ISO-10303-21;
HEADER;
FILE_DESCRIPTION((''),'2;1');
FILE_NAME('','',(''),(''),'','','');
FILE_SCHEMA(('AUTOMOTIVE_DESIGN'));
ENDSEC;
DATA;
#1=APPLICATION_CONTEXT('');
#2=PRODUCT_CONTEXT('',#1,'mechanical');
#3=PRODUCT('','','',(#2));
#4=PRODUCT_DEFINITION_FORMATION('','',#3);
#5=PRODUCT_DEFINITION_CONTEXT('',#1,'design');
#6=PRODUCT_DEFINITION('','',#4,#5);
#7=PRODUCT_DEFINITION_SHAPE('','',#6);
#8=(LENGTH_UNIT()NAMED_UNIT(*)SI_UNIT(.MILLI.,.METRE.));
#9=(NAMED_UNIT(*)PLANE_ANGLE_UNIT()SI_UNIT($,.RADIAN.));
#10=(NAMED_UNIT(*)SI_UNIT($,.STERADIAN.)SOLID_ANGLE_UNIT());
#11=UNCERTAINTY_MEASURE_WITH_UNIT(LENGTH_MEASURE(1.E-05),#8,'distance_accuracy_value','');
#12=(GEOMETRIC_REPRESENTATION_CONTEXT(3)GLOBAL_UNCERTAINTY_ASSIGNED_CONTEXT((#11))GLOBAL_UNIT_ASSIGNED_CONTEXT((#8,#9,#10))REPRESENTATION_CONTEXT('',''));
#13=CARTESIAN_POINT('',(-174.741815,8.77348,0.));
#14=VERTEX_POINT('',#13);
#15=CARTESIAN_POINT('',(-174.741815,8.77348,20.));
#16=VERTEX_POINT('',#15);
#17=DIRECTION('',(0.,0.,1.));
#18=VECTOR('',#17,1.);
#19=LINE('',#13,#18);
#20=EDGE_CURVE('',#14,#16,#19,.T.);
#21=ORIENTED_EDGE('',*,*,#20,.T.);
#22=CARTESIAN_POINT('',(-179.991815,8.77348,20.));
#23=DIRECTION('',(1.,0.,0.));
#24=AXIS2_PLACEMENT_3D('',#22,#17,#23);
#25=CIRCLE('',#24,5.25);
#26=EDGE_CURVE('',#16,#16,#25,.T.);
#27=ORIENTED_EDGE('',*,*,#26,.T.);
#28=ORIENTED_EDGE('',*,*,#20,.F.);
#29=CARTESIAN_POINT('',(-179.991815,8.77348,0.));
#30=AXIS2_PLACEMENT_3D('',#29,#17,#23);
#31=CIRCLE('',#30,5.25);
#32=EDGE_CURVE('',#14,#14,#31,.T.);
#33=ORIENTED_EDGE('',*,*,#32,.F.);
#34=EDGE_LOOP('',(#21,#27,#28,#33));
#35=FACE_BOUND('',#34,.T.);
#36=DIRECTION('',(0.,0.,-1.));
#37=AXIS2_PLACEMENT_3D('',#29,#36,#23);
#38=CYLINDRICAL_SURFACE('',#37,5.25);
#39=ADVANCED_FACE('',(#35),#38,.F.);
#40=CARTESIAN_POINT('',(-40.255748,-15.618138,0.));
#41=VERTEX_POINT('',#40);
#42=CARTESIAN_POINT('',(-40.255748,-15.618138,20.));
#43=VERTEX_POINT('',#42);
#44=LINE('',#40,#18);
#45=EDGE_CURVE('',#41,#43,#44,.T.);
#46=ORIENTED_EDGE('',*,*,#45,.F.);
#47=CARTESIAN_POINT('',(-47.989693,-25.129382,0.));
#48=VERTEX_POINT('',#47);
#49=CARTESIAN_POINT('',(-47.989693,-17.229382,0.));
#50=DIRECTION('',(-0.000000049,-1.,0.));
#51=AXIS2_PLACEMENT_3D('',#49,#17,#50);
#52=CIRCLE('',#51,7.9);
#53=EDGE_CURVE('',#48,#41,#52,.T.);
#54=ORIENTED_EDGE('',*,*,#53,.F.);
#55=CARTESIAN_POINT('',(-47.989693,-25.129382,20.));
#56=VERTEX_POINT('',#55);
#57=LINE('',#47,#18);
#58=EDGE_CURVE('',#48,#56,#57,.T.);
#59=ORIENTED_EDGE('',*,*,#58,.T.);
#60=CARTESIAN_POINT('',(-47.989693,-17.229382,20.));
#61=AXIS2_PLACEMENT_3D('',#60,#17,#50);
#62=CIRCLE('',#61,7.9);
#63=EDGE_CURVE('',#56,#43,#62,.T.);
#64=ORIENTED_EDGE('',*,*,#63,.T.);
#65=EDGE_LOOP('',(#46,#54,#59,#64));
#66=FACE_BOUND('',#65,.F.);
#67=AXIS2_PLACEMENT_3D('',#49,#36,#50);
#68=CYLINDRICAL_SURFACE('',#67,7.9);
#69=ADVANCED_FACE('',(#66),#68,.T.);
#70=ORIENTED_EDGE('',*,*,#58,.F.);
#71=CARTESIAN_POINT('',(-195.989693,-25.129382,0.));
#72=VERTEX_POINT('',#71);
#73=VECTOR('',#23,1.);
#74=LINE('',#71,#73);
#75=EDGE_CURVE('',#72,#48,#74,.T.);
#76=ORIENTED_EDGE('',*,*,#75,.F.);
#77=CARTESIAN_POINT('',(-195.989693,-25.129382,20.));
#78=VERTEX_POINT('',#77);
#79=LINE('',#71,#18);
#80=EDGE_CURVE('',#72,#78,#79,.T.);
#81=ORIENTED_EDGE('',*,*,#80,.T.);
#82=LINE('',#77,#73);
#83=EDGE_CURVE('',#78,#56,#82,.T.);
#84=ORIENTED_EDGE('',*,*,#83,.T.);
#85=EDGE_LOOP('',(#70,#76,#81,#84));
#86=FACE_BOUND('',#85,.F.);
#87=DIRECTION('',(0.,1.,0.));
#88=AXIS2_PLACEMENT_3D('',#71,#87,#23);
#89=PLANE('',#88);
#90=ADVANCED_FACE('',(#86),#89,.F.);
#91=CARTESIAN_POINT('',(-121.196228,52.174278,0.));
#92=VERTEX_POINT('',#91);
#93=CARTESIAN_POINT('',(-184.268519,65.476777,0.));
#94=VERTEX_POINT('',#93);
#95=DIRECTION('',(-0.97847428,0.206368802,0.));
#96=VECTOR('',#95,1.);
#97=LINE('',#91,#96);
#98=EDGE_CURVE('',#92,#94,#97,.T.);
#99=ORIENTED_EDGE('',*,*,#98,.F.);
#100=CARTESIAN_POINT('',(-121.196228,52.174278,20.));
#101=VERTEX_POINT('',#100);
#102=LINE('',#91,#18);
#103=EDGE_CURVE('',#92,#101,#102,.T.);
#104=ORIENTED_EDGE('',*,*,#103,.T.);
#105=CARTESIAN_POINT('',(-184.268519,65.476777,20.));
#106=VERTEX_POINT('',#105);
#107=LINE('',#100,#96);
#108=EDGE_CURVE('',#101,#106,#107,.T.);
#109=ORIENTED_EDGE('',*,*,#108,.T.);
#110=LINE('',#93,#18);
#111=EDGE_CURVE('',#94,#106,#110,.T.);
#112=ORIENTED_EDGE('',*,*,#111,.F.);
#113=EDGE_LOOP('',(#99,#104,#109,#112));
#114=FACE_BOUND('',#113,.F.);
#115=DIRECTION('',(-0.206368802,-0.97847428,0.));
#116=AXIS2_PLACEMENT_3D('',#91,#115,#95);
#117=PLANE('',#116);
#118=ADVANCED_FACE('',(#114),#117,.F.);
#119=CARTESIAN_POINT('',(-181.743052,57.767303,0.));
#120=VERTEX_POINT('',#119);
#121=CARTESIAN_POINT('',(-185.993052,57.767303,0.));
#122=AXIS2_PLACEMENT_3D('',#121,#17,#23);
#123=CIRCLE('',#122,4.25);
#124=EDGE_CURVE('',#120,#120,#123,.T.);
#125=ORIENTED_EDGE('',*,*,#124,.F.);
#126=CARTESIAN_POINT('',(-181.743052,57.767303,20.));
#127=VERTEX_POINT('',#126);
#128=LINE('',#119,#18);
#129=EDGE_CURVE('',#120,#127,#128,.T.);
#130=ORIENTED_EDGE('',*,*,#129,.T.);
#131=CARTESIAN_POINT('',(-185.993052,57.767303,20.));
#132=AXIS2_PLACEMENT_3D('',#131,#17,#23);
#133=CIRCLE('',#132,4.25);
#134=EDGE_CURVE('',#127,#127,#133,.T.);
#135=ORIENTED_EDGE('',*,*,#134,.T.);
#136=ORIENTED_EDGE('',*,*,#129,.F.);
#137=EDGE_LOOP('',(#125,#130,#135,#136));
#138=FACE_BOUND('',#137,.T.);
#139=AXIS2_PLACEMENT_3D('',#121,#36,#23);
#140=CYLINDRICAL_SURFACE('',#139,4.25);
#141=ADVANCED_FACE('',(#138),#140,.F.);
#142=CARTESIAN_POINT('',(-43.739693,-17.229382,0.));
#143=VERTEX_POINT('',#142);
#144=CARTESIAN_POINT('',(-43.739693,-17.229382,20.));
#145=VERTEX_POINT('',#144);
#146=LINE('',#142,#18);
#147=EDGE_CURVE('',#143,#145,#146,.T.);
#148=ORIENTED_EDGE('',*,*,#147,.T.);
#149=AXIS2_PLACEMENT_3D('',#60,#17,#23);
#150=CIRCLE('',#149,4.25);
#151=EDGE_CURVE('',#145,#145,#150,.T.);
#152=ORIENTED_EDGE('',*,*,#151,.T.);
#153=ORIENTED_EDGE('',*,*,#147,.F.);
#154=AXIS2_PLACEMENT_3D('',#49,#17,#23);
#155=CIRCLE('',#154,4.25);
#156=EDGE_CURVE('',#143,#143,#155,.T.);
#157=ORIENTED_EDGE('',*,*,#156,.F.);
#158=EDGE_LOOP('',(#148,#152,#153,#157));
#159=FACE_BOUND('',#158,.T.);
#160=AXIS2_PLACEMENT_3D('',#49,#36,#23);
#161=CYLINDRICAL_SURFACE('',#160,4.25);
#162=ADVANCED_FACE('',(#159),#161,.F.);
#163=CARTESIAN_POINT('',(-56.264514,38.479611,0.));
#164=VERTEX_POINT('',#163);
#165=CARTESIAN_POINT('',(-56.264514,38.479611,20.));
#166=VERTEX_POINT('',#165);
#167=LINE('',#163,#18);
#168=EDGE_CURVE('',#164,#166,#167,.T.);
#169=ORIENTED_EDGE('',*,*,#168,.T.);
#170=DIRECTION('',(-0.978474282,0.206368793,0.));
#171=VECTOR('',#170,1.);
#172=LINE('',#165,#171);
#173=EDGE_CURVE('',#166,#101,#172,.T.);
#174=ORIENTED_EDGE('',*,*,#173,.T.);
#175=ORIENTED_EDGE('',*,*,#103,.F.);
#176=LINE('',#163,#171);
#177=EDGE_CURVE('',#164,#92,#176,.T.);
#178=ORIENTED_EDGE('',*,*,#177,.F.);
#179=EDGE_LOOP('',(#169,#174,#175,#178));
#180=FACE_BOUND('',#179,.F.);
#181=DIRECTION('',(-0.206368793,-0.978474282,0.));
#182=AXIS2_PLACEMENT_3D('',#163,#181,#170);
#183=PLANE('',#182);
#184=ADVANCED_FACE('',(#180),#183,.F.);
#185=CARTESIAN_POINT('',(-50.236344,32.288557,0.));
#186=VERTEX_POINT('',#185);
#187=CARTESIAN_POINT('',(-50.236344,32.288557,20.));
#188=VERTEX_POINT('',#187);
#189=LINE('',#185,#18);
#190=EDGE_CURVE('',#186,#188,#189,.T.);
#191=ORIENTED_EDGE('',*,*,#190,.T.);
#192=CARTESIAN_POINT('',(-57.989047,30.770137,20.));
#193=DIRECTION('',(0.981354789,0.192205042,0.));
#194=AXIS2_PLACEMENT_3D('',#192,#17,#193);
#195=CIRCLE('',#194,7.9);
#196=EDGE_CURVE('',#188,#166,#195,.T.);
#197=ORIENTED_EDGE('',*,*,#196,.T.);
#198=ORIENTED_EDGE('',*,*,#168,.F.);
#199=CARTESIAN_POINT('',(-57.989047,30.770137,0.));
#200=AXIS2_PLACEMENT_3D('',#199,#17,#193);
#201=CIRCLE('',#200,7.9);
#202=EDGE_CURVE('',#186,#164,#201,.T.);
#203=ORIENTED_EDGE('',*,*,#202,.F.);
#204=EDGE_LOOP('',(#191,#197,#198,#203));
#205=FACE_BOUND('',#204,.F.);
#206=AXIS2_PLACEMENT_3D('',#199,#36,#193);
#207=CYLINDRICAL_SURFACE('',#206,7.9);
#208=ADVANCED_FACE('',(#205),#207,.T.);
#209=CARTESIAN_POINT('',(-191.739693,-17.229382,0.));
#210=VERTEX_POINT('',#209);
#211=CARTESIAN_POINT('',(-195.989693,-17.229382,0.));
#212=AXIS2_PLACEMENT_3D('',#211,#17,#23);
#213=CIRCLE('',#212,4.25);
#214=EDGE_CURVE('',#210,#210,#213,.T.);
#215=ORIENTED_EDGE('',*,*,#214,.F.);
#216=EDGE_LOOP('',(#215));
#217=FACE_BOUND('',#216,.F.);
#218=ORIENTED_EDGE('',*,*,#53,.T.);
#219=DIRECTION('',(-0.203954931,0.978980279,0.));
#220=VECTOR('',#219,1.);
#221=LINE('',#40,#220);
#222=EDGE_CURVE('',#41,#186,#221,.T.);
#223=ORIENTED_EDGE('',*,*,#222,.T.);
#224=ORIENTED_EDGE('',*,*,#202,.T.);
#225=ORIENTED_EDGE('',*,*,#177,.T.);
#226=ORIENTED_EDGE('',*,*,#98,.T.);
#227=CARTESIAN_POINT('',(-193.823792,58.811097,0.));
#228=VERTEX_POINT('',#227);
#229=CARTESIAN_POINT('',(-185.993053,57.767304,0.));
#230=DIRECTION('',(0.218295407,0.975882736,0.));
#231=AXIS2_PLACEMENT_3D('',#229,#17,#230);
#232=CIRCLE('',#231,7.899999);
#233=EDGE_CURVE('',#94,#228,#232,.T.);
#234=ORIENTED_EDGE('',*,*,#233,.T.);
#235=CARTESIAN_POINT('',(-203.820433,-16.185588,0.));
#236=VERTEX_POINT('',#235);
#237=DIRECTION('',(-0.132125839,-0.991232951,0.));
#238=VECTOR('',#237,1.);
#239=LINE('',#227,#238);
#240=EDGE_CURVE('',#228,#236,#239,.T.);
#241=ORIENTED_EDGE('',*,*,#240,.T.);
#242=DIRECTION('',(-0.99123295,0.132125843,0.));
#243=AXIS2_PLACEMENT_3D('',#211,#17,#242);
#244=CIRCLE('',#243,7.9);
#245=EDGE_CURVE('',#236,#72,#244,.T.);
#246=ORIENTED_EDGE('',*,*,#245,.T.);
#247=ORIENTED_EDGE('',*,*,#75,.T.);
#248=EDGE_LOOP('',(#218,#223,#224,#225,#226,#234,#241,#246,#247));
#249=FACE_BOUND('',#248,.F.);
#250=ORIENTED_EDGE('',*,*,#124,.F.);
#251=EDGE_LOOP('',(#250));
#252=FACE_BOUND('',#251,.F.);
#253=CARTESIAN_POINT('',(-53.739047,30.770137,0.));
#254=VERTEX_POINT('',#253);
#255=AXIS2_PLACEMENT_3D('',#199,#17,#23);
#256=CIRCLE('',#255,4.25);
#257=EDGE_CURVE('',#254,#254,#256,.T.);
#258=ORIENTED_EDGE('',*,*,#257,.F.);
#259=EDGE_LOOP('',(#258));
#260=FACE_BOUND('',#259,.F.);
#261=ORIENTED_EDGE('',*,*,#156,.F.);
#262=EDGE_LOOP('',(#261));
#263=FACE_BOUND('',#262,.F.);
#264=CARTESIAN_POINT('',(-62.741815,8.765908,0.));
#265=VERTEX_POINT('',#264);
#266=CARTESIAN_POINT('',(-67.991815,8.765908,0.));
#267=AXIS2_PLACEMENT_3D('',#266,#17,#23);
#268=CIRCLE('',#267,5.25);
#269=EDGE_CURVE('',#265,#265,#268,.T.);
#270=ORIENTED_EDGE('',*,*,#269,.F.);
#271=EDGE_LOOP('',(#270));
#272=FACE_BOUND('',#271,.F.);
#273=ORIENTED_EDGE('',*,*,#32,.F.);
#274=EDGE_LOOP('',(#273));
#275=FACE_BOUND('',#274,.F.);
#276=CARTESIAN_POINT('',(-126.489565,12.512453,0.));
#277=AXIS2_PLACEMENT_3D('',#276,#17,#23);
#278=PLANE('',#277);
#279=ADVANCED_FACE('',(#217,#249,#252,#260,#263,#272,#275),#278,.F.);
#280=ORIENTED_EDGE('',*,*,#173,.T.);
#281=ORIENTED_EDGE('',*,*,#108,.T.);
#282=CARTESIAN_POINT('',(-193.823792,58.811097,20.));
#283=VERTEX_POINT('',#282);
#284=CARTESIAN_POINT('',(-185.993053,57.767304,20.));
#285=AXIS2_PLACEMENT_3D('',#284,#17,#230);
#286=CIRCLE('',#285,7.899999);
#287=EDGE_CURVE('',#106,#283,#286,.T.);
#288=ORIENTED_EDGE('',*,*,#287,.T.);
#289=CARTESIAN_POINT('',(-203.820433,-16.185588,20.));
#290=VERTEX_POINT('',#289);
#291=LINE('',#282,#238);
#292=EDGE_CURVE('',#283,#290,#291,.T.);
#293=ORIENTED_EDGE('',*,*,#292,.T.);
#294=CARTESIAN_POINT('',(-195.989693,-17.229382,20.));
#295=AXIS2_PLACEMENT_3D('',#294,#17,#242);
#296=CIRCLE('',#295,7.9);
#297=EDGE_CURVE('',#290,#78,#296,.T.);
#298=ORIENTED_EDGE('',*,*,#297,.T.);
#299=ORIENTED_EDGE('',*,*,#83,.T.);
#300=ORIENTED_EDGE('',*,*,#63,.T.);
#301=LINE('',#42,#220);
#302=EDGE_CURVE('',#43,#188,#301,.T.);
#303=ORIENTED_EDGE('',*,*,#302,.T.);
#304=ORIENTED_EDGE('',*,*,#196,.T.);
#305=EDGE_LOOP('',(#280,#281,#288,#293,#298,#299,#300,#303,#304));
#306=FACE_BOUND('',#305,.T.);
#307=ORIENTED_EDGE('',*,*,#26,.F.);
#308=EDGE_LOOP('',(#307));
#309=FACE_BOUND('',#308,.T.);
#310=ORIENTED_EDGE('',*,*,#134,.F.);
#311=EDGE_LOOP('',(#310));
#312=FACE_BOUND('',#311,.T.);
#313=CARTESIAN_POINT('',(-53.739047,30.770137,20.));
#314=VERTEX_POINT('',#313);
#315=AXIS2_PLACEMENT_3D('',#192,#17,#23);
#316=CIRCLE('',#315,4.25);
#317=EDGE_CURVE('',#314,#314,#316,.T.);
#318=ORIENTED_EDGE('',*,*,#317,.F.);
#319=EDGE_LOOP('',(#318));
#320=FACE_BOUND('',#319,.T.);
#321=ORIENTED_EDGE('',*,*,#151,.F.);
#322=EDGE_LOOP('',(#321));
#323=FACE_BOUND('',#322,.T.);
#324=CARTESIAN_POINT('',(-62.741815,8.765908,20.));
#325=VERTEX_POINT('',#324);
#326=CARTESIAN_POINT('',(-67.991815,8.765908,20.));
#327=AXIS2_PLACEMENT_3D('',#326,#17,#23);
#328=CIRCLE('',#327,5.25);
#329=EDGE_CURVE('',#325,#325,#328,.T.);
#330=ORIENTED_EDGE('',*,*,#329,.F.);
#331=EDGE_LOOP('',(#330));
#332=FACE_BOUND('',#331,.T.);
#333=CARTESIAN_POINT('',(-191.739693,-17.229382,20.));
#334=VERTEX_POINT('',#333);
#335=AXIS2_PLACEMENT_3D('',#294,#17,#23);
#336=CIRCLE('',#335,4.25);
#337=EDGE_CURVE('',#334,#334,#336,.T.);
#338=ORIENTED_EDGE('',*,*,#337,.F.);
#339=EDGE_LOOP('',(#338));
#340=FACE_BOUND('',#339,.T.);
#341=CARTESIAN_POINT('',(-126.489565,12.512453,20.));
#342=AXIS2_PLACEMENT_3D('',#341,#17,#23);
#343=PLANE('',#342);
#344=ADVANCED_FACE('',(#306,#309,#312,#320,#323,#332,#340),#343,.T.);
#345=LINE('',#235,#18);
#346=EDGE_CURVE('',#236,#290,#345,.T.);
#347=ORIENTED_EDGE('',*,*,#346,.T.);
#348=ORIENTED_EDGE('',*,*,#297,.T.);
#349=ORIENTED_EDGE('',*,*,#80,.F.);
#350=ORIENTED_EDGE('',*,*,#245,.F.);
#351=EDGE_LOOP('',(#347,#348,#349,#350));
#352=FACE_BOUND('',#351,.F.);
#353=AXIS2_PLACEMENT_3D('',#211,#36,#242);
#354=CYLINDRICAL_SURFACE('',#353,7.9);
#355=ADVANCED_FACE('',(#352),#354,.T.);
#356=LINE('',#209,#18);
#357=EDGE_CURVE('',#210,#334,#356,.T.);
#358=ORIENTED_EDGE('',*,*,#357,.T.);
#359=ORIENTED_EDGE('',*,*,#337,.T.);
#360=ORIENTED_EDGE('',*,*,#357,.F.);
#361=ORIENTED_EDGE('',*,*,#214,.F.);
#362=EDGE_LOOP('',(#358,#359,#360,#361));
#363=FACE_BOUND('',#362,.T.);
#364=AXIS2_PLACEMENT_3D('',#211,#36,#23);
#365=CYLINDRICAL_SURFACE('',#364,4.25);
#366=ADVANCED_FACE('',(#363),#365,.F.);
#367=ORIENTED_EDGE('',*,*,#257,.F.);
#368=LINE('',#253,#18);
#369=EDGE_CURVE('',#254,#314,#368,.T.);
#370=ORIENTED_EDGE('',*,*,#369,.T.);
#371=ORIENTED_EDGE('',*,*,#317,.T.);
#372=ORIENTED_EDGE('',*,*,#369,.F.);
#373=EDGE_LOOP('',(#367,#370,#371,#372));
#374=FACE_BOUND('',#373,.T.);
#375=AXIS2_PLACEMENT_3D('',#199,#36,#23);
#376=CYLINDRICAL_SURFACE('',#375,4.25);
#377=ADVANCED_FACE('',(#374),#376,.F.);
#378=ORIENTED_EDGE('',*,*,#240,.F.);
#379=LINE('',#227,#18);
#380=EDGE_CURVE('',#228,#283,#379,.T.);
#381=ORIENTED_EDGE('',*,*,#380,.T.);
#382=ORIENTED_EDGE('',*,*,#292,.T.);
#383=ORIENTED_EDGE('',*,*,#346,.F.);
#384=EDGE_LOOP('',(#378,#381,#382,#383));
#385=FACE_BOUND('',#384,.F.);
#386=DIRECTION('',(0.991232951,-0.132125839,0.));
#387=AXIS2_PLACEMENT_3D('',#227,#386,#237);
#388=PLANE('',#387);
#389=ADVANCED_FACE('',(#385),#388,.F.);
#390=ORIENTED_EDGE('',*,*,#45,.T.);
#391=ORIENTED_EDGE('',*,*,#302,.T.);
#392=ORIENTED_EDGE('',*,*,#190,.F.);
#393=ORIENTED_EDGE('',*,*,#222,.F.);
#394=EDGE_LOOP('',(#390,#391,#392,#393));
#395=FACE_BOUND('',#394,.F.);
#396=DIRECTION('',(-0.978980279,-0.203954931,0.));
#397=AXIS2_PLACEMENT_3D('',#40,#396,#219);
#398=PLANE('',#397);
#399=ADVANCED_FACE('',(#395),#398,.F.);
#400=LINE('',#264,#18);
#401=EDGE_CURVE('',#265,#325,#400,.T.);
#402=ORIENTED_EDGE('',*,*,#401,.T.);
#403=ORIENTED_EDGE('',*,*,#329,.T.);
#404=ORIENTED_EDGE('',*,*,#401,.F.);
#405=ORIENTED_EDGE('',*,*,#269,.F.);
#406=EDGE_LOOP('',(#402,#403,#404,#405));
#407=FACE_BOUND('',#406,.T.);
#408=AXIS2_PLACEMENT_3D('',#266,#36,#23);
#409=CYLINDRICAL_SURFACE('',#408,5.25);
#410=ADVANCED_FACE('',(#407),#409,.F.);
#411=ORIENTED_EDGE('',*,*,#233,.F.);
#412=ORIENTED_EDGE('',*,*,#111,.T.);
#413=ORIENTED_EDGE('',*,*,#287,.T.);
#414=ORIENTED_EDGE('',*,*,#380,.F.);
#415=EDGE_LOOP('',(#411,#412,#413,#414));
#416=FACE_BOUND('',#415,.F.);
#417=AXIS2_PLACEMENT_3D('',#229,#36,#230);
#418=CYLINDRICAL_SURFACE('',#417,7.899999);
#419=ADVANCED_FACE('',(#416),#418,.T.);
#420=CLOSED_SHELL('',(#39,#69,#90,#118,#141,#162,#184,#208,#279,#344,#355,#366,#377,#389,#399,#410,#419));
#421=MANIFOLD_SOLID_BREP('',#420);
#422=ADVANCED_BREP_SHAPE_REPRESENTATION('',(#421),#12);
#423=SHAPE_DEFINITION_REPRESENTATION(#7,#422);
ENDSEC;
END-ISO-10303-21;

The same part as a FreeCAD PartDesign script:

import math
import FreeCAD as App
import Part
import Sketcher

V = App.Vector
Q = App.Units.Quantity

doc = App.newDocument("Part")
params = doc.addObject("Spreadsheet::Sheet", "Params")
for row, (alias, value) in enumerate([
    ("sketch1_diameter", "8.5 mm"),
    ("sketch1_diameter2", "10.5 mm"),
    ("sketch1_radius", "7.9 mm"),
    ("sketch1_width", "148 mm"),
    ("sketch1_length", "75.66 mm"),
    ("pad1_length", "20 mm"),
], start=1):
    params.set(f"A{row}", alias)
    params.set(f"B{row}", "=" + value)
    params.setAlias(f"B{row}", alias)

body = doc.addObject("PartDesign::Body", "Body")

# Sketch on XY plane
sketch1 = body.newObject("Sketcher::SketchObject", "Sketch")
sketch1.AttachmentSupport = (doc.getObject("XY_Plane"), [""])
sketch1.MapMode = "FlatFace"
sketch1.addGeometry(Part.LineSegment(V(-193.8, 58.8, 0), V(-203.8, -16.2, 0)), False)
sketch1.addGeometry(Part.ArcOfCircle(Part.Circle(V(-196, -17.2, 0), V(0, 0, 1), 7.9), math.radians(172), math.radians(270)), False)
sketch1.addGeometry(Part.LineSegment(V(-196, -25.1, 0), V(-48, -25.1, 0)), False)
sketch1.addGeometry(Part.ArcOfCircle(Part.Circle(V(-48, -17.2, 0), V(0, 0, 1), 7.9), math.radians(-90), math.radians(12)), False)
sketch1.addGeometry(Part.LineSegment(V(-40.3, -15.6, 0), V(-50.2, 32.3, 0)), False)
sketch1.addGeometry(Part.ArcOfCircle(Part.Circle(V(-58, 30.8, 0), V(0, 0, 1), 7.9), math.radians(11), math.radians(77)), False)
sketch1.addGeometry(Part.LineSegment(V(-56.3, 38.5, 0), V(-121.2, 52.2, 0)), False)
sketch1.addGeometry(Part.LineSegment(V(-121.2, 52.2, 0), V(-184.3, 65.5, 0)), False)
sketch1.addGeometry(Part.ArcOfCircle(Part.Circle(V(-186, 57.8, 0), V(0, 0, 1), 7.9), math.radians(77), math.radians(172)), False)
sketch1.addGeometry(Part.Circle(V(-196, -17.2, 0), V(0, 0, 1), 4.2), False)
sketch1.addGeometry(Part.Circle(V(-180, 8.8, 0), V(0, 0, 1), 5.2), False)
sketch1.addGeometry(Part.Circle(V(-48, -17.2, 0), V(0, 0, 1), 4.2), False)
sketch1.addGeometry(Part.Circle(V(-68, 8.8, 0), V(0, 0, 1), 5.2), False)
sketch1.addGeometry(Part.Circle(V(-186, 57.8, 0), V(0, 0, 1), 4.2), False)
sketch1.addGeometry(Part.Circle(V(-58, 30.8, 0), V(0, 0, 1), 4.2), False)
sketch1.addConstraint(Sketcher.Constraint("Tangent", 0, 2, 1, 1))
sketch1.addConstraint(Sketcher.Constraint("Tangent", 1, 2, 2, 1))
sketch1.addConstraint(Sketcher.Constraint("Tangent", 2, 2, 3, 1))
sketch1.addConstraint(Sketcher.Constraint("Tangent", 3, 2, 4, 1))
sketch1.addConstraint(Sketcher.Constraint("Coincident", 4, 2, 5, 1))
sketch1.addConstraint(Sketcher.Constraint("Coincident", 5, 2, 6, 1))
sketch1.addConstraint(Sketcher.Constraint("Coincident", 6, 2, 7, 1))
sketch1.addConstraint(Sketcher.Constraint("Coincident", 7, 2, 8, 1))
sketch1.addConstraint(Sketcher.Constraint("Tangent", 8, 2, 0, 1))
sketch1.addConstraint(Sketcher.Constraint("Horizontal", 2))
sketch1.addConstraint(Sketcher.Constraint("Coincident", 9, 3, 1, 3))
sketch1.addConstraint(Sketcher.Constraint("Coincident", 11, 3, 3, 3))
sketch1.addConstraint(Sketcher.Constraint("Coincident", 13, 3, 8, 3))
sketch1.addConstraint(Sketcher.Constraint("Coincident", 14, 3, 5, 3))
sketch1.addConstraint(Sketcher.Constraint("Equal", 1, 3))
sketch1.addConstraint(Sketcher.Constraint("Equal", 3, 5))
sketch1.addConstraint(Sketcher.Constraint("Equal", 5, 8))
sketch1.addConstraint(Sketcher.Constraint("Equal", 9, 11))
sketch1.addConstraint(Sketcher.Constraint("Equal", 10, 12))
sketch1.addConstraint(Sketcher.Constraint("Equal", 11, 13))
sketch1.addConstraint(Sketcher.Constraint("Equal", 13, 14))
sketch1.addConstraint(Sketcher.Constraint("Parallel", 6, 7))
sketch1.addConstraint(Sketcher.Constraint("Diameter", 9, Q("8.5 mm")))
sketch1.addConstraint(Sketcher.Constraint("Diameter", 10, Q("10.5 mm")))
sketch1.addConstraint(Sketcher.Constraint("Radius", 1, Q("7.9 mm")))
sketch1.addConstraint(Sketcher.Constraint("DistanceX", 2, 1, 2, 2, Q("148 mm")))
sketch1.addConstraint(Sketcher.Constraint("DistanceX", 10, 3, 12, 3, Q("112 mm")))
sketch1.addConstraint(Sketcher.Constraint("Distance", 0, Q("75.66 mm")))
sketch1.addConstraint(Sketcher.Constraint("Distance", 4, Q("48.935301 mm")))
sketch1.addConstraint(Sketcher.Constraint("DistanceX", 14, 3, 3, 2, Q("17.733299 mm")))
sketch1.addConstraint(Sketcher.Constraint("DistanceX", 12, 3, 5, 2, Q("11.727301 mm")))
sketch1.addConstraint(Sketcher.Constraint("DistanceY", 6, 2, 7, 2, Q("13.302499 mm")))
sketch1.addConstraint(Sketcher.Constraint("DistanceY", 3, 3, -1, 1, Q("17.229382 mm")))
sketch1.addConstraint(Sketcher.Constraint("DistanceY", -1, 1, 10, 3, Q("8.77348 mm")))
sketch1.addConstraint(Sketcher.Constraint("DistanceX", 13, 3, -1, 1, Q("185.993052 mm")))
sketch1.addConstraint(Sketcher.Constraint("DistanceX", 3, 2, -1, 1, Q("40.255748 mm")))
sketch1.addConstraint(Sketcher.Constraint("DistanceY", -1, 1, 5, 2, Q("38.479611 mm")))
sketch1.addConstraint(Sketcher.Constraint("DistanceX", 6, 2, -1, 1, Q("121.196228 mm")))
sketch1.addConstraint(Sketcher.Constraint("DistanceX", 7, 2, -1, 1, Q("184.268519 mm")))
sketch1.addConstraint(Sketcher.Constraint("DistanceY", 12, 3, 5, 3, Q("22.004229 mm")))
sketch1.setExpression("Constraints[22]", "Params.sketch1_diameter")
sketch1.setExpression("Constraints[23]", "Params.sketch1_diameter2")
sketch1.setExpression("Constraints[24]", "Params.sketch1_radius")
sketch1.setExpression("Constraints[25]", "Params.sketch1_width")
sketch1.setExpression("Constraints[27]", "Params.sketch1_length")
pad1 = body.newObject("PartDesign::Pad", "Pad")
pad1.Profile = sketch1
pad1.setExpression("Length", "Params.pad1_length")

doc.recompute()
